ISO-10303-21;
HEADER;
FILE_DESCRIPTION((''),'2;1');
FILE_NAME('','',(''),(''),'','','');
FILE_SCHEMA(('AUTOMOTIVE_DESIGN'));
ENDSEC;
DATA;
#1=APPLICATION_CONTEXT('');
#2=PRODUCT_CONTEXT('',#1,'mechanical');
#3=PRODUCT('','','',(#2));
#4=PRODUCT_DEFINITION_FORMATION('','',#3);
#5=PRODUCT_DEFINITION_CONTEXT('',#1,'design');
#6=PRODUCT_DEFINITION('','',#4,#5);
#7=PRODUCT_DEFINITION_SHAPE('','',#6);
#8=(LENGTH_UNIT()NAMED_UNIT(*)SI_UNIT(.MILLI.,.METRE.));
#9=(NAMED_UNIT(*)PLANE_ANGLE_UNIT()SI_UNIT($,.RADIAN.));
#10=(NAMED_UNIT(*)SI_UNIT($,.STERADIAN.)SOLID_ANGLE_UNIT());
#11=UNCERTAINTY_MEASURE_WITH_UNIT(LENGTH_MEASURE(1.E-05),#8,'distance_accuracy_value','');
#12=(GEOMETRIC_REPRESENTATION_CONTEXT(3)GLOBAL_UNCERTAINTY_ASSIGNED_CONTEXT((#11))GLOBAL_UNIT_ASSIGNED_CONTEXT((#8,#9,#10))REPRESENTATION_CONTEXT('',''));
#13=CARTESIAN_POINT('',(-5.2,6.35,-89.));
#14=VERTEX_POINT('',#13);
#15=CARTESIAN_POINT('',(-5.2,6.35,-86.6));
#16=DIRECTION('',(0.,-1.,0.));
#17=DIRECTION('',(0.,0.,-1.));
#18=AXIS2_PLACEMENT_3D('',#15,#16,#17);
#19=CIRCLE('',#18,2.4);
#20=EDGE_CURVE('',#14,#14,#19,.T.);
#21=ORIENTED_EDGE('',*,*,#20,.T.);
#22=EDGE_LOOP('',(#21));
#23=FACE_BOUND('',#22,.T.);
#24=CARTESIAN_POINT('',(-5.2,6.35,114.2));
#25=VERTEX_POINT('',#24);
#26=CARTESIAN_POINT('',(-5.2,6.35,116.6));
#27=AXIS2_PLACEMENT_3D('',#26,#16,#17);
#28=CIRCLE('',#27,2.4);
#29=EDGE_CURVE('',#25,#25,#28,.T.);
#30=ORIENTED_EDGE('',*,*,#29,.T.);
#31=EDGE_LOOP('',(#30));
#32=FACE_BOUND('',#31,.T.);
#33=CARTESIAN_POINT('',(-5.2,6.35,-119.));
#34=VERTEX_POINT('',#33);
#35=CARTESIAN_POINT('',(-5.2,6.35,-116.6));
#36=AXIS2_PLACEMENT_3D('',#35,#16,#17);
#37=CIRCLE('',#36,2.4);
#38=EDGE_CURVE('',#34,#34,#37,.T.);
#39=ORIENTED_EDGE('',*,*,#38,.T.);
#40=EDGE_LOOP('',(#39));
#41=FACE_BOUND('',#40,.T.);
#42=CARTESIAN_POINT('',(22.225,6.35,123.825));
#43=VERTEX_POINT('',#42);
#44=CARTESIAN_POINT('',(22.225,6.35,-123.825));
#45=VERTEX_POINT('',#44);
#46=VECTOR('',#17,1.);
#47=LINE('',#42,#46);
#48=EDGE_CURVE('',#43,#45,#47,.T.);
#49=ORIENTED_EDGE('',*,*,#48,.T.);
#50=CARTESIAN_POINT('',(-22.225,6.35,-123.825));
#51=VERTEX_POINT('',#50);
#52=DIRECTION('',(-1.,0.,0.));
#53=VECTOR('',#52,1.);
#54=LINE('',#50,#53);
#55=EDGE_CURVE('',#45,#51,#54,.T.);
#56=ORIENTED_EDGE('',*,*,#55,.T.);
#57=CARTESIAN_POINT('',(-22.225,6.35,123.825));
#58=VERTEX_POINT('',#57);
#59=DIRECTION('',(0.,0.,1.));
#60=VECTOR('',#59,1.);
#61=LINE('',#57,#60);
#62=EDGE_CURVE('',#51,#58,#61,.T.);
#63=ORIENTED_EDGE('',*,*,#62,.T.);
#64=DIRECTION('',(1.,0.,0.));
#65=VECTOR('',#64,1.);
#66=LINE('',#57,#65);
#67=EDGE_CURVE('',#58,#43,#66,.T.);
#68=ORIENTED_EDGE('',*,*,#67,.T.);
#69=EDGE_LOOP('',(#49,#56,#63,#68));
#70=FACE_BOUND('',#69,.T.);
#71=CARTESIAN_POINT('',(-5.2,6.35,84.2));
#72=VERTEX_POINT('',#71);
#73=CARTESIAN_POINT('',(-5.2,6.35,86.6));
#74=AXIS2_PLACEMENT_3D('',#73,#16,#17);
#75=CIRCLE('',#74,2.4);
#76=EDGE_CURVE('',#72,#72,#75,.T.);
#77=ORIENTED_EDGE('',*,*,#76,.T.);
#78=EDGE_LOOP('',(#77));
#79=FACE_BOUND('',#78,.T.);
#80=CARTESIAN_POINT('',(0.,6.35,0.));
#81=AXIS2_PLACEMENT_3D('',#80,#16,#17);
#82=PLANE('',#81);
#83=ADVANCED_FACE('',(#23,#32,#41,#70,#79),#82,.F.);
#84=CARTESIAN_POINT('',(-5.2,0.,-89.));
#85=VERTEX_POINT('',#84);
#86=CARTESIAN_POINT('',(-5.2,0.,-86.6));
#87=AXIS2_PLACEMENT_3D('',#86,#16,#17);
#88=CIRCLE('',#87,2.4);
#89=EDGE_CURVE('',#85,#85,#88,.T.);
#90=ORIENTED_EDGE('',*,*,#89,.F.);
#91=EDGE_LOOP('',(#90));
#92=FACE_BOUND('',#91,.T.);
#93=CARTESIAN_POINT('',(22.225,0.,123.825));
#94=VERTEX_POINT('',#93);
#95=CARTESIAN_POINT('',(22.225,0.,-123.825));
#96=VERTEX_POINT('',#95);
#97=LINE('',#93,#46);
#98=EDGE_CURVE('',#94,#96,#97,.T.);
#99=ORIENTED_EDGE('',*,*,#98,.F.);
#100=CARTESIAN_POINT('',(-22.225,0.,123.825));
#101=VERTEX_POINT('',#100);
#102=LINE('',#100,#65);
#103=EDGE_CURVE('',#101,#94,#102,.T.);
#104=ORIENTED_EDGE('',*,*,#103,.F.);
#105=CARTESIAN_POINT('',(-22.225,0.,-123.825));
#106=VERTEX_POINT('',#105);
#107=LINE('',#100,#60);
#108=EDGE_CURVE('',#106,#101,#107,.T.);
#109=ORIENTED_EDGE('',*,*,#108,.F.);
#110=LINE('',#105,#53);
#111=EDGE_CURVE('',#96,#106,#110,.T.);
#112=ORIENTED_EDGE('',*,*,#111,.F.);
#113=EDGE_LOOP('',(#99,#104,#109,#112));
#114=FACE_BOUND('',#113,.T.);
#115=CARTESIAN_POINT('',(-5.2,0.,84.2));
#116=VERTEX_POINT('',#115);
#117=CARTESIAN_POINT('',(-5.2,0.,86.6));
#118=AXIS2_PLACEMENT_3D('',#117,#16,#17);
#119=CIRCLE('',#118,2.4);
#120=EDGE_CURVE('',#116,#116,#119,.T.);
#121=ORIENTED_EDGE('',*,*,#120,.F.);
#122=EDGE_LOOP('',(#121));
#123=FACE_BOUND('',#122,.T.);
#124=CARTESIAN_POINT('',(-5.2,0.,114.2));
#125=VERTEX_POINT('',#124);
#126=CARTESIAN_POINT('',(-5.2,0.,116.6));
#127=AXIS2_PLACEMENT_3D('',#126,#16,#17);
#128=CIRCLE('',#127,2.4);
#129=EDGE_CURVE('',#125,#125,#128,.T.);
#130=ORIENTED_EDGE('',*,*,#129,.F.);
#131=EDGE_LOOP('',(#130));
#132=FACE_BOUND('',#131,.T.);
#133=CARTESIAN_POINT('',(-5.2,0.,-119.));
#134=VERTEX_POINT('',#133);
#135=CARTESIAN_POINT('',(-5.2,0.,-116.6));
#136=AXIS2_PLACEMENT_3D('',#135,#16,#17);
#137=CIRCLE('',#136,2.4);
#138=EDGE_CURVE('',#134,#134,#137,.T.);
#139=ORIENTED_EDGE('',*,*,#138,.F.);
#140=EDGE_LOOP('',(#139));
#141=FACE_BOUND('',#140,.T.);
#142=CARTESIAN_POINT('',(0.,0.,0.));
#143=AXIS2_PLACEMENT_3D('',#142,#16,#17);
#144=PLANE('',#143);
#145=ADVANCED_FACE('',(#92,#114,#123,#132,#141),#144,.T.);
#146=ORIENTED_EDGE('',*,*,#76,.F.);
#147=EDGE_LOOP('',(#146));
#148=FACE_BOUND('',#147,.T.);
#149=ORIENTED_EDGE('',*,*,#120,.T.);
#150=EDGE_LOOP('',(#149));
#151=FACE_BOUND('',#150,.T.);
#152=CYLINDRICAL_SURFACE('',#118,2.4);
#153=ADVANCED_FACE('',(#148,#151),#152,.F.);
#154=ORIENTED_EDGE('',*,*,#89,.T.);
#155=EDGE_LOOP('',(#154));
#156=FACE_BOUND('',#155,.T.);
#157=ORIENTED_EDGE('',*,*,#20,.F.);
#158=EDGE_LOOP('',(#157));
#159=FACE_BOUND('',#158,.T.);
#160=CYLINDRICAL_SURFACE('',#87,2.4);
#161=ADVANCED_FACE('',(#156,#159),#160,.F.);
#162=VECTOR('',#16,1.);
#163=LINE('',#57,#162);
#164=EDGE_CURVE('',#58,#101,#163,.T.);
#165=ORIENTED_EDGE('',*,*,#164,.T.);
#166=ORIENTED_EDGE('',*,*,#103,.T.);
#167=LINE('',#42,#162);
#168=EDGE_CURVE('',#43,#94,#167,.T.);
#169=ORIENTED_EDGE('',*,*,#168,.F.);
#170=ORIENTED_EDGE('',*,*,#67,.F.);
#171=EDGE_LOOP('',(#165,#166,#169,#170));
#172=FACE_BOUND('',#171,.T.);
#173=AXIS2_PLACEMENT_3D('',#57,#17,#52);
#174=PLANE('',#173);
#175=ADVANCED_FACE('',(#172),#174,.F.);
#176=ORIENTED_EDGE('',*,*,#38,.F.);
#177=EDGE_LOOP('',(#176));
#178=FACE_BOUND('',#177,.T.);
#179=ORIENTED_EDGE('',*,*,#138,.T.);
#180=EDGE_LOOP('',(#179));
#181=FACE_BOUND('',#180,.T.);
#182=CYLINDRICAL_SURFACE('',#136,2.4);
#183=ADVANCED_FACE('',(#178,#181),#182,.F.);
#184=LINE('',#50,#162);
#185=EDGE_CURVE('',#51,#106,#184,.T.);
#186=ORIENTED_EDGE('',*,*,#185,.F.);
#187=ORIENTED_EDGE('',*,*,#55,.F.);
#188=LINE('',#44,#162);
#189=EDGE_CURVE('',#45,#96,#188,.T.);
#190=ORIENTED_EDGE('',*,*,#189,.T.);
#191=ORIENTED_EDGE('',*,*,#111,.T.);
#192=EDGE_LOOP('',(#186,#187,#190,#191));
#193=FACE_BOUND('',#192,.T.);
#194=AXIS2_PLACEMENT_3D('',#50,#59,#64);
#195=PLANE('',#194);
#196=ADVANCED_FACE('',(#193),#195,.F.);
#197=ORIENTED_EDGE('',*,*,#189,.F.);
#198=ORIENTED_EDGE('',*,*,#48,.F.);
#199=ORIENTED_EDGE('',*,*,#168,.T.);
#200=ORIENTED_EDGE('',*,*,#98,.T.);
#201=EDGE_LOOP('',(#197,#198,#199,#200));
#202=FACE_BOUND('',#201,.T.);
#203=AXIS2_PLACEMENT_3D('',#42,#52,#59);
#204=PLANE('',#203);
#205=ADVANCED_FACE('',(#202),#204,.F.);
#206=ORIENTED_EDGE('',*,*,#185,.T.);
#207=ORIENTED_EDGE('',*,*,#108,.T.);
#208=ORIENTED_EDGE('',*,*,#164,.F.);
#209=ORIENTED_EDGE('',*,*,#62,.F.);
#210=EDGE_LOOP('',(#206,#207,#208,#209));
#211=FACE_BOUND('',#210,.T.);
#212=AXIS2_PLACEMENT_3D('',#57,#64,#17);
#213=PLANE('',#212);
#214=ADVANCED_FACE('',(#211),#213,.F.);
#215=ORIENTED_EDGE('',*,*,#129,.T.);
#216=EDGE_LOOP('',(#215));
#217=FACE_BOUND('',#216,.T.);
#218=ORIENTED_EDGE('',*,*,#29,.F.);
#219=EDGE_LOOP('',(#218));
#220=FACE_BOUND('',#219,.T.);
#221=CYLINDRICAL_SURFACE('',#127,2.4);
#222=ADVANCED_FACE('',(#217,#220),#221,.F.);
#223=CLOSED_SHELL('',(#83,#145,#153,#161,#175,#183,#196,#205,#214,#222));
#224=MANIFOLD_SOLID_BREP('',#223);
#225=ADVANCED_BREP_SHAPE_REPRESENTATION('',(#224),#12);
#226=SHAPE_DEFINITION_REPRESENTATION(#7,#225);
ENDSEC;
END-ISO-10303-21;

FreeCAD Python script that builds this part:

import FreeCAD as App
import Part
import Sketcher
Q = App.Units.Quantity

doc = App.newDocument("Part")
body = doc.addObject("PartDesign::Body", "Body")

# Sketch on XZ plane
sketch1 = doc.addObject("Sketcher::SketchObject", "Sketch")
body.addObject(sketch1)
sketch1.AttachmentSupport = (doc.XZ_Plane, [""])
sketch1.MapMode = "FlatFace"
sketch1.addGeometry([
    Part.LineSegment(App.Vector(-22, -124, 0), App.Vector(-22, 124, 0)),
    Part.LineSegment(App.Vector(-22, 124, 0), App.Vector(22, 124, 0)),
    Part.LineSegment(App.Vector(22, 124, 0), App.Vector(22, -124, 0)),
    Part.LineSegment(App.Vector(22, -124, 0), App.Vector(-22, -124, 0)),
], False)
sketch1.addConstraint([
    Sketcher.Constraint("Coincident", 0, 2, 1, 1),
    Sketcher.Constraint("Coincident", 1, 2, 2, 1),
    Sketcher.Constraint("Coincident", 2, 2, 3, 1),
    Sketcher.Constraint("Coincident", 3, 2, 0, 1),
    Sketcher.Constraint("Vertical", 0),
    Sketcher.Constraint("Horizontal", 1),
    Sketcher.Constraint("Vertical", 2),
    Sketcher.Constraint("Horizontal", 3),
    Sketcher.Constraint("Symmetric", 0, 2, 2, 2, -1, 1),
    Sketcher.Constraint("DistanceX", 1, 1, 1, 2, Q("1.75 in")),
    Sketcher.Constraint("DistanceY", 0, 1, 0, 2, Q("9.75 in")),
])
pad1 = doc.addObject("PartDesign::Pad", "Pad")
body.addObject(pad1)
pad1.Profile = sketch1
pad1.Length = Q("0.25 in")
pad1.Reversed = True

# Sketch on XZ plane
sketch2 = doc.addObject("Sketcher::SketchObject", "Sketch001")
body.addObject(sketch2)
sketch2.AttachmentSupport = (doc.XZ_Plane, [""])
sketch2.MapMode = "FlatFace"
sketch2.addGeometry([
    Part.Circle(App.Vector(-37.2, 116.6, 0), App.Vector(0, 0, 1), 2.4),  # 0
    Part.Circle(App.Vector(-5.2, 116.6, 0), App.Vector(0, 0, 1), 2.4),  # 1
    Part.Circle(App.Vector(-5.2, 86.6, 0), App.Vector(0, 0, 1), 2.4),  # 2
    Part.Circle(App.Vector(-37.2, 86.6, 0), App.Vector(0, 0, 1), 2.4),  # 3
    Part.Circle(App.Vector(-37.2, -86.6, 0), App.Vector(0, 0, 1), 2.4),  # 4
    Part.Circle(App.Vector(-37.2, -116.6, 0), App.Vector(0, 0, 1), 2.4),  # 5
    Part.Circle(App.Vector(-5.2, -116.6, 0), App.Vector(0, 0, 1), 2.4),  # 6
    Part.Circle(App.Vector(-5.2, -86.6, 0), App.Vector(0, 0, 1), 2.4),  # 7
], False)
sketch2.addConstraint([
    Sketcher.Constraint("Equal", 0, 1),
    Sketcher.Constraint("Equal", 1, 2),
    Sketcher.Constraint("Equal", 2, 3),
    Sketcher.Constraint("Equal", 3, 4),
    Sketcher.Constraint("Equal", 4, 5),
    Sketcher.Constraint("Equal", 5, 6),
    Sketcher.Constraint("Equal", 6, 7),
    Sketcher.Constraint("Symmetric", 3, 3, 4, 3, -1),
    Sketcher.Constraint("Symmetric", 0, 3, 5, 3, -1),
    Sketcher.Constraint("Symmetric", 1, 3, 6, 3, -1),
    Sketcher.Constraint("Symmetric", 2, 3, 7, 3, -1),
    Sketcher.Constraint("Horizontal", 0, 3, 1, 3),
    Sketcher.Constraint("Horizontal", 2, 3, 3, 3),
    Sketcher.Constraint("Vertical", 1, 3, 2, 3),
    Sketcher.Constraint("Vertical", 0, 3, 3, 3),
    Sketcher.Constraint("DistanceY", 4, 3, 0, 3, Q("8 in")),
    Sketcher.Constraint("Diameter", 0, Q("4.8 mm")),
    Sketcher.Constraint("DistanceX", 0, 3, -1, 1, Q("37.2 mm")),
    Sketcher.Constraint("DistanceY", -1, 1, 0, 3, Q("116.6 mm")),
    Sketcher.Constraint("DistanceX", 1, 3, -1, 1, Q("5.2 mm")),
])
doc.recompute()
hole = doc.addObject("PartDesign::Hole", "Hole")
body.addObject(hole)
hole.Profile = sketch2
hole.ThreadType = "None"
hole.Diameter = 4.8
hole.DepthType = "ThroughAll"

doc.recompute()
